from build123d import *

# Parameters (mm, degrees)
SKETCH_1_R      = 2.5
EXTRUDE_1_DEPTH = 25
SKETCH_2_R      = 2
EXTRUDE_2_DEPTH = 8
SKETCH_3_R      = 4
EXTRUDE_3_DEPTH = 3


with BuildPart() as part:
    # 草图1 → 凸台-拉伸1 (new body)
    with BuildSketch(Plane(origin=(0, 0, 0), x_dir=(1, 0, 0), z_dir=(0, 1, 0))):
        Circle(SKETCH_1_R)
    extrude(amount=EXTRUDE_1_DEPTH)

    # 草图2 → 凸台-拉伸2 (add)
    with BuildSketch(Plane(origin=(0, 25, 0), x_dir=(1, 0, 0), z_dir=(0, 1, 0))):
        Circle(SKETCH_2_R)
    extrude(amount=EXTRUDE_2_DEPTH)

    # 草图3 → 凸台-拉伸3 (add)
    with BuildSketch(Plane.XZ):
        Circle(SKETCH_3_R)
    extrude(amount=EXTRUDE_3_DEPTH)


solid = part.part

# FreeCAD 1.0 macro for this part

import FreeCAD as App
import Part
import Sketcher

V = App.Vector

doc = App.newDocument("Part")
body = doc.addObject("PartDesign::Body", "Body")

# Sketch on XZ plane
sketch1 = doc.addObject("Sketcher::SketchObject", "Sketch")
body.addObject(sketch1)
sketch1.AttachmentSupport = (doc.XZ_Plane, [""])
sketch1.MapMode = "FlatFace"
sketch1.addGeometry(Part.Circle(V(0, 0, 0), V(0, 0, 1), 2.5), False)
sketch1.addConstraint([
    Sketcher.Constraint("Coincident", 0, 3, -1, 1),
    Sketcher.Constraint("Diameter", 0, 5.0),
])
pad1 = doc.addObject("PartDesign::Pad", "Pad")
body.addObject(pad1)
pad1.Profile = sketch1
pad1.Length = 25
pad1.Reversed = True

# Sketch on XZ plane
sketch2 = doc.addObject("Sketcher::SketchObject", "Sketch001")
body.addObject(sketch2)
sketch2.AttachmentSupport = (doc.XZ_Plane, [""])
sketch2.MapMode = "FlatFace"
sketch2.AttachmentOffset = App.Placement(V(0, 0, -25), App.Rotation())
sketch2.addGeometry(Part.Circle(V(0, 0, 0), V(0, 0, 1), 2), False)
sketch2.addConstraint([
    Sketcher.Constraint("Coincident", 0, 3, -1, 1),
    Sketcher.Constraint("Diameter", 0, 4.0),
])
pad2 = doc.addObject("PartDesign::Pad", "Pad001")
body.addObject(pad2)
pad2.Profile = sketch2
pad2.Length = 8
pad2.Reversed = True

# Sketch on XZ plane
sketch3 = doc.addObject("Sketcher::SketchObject", "Sketch002")
body.addObject(sketch3)
sketch3.AttachmentSupport = (doc.XZ_Plane, [""])
sketch3.MapMode = "FlatFace"
sketch3.addGeometry(Part.Circle(V(0, 0, 0), V(0, 0, 1), 4), False)
sketch3.addConstraint([
    Sketcher.Constraint("Coincident", 0, 3, -1, 1),
    Sketcher.Constraint("Diameter", 0, 8.0),
])
pad3 = doc.addObject("PartDesign::Pad", "Pad002")
body.addObject(pad3)
pad3.Profile = sketch3
pad3.Length = 3

doc.recompute()
